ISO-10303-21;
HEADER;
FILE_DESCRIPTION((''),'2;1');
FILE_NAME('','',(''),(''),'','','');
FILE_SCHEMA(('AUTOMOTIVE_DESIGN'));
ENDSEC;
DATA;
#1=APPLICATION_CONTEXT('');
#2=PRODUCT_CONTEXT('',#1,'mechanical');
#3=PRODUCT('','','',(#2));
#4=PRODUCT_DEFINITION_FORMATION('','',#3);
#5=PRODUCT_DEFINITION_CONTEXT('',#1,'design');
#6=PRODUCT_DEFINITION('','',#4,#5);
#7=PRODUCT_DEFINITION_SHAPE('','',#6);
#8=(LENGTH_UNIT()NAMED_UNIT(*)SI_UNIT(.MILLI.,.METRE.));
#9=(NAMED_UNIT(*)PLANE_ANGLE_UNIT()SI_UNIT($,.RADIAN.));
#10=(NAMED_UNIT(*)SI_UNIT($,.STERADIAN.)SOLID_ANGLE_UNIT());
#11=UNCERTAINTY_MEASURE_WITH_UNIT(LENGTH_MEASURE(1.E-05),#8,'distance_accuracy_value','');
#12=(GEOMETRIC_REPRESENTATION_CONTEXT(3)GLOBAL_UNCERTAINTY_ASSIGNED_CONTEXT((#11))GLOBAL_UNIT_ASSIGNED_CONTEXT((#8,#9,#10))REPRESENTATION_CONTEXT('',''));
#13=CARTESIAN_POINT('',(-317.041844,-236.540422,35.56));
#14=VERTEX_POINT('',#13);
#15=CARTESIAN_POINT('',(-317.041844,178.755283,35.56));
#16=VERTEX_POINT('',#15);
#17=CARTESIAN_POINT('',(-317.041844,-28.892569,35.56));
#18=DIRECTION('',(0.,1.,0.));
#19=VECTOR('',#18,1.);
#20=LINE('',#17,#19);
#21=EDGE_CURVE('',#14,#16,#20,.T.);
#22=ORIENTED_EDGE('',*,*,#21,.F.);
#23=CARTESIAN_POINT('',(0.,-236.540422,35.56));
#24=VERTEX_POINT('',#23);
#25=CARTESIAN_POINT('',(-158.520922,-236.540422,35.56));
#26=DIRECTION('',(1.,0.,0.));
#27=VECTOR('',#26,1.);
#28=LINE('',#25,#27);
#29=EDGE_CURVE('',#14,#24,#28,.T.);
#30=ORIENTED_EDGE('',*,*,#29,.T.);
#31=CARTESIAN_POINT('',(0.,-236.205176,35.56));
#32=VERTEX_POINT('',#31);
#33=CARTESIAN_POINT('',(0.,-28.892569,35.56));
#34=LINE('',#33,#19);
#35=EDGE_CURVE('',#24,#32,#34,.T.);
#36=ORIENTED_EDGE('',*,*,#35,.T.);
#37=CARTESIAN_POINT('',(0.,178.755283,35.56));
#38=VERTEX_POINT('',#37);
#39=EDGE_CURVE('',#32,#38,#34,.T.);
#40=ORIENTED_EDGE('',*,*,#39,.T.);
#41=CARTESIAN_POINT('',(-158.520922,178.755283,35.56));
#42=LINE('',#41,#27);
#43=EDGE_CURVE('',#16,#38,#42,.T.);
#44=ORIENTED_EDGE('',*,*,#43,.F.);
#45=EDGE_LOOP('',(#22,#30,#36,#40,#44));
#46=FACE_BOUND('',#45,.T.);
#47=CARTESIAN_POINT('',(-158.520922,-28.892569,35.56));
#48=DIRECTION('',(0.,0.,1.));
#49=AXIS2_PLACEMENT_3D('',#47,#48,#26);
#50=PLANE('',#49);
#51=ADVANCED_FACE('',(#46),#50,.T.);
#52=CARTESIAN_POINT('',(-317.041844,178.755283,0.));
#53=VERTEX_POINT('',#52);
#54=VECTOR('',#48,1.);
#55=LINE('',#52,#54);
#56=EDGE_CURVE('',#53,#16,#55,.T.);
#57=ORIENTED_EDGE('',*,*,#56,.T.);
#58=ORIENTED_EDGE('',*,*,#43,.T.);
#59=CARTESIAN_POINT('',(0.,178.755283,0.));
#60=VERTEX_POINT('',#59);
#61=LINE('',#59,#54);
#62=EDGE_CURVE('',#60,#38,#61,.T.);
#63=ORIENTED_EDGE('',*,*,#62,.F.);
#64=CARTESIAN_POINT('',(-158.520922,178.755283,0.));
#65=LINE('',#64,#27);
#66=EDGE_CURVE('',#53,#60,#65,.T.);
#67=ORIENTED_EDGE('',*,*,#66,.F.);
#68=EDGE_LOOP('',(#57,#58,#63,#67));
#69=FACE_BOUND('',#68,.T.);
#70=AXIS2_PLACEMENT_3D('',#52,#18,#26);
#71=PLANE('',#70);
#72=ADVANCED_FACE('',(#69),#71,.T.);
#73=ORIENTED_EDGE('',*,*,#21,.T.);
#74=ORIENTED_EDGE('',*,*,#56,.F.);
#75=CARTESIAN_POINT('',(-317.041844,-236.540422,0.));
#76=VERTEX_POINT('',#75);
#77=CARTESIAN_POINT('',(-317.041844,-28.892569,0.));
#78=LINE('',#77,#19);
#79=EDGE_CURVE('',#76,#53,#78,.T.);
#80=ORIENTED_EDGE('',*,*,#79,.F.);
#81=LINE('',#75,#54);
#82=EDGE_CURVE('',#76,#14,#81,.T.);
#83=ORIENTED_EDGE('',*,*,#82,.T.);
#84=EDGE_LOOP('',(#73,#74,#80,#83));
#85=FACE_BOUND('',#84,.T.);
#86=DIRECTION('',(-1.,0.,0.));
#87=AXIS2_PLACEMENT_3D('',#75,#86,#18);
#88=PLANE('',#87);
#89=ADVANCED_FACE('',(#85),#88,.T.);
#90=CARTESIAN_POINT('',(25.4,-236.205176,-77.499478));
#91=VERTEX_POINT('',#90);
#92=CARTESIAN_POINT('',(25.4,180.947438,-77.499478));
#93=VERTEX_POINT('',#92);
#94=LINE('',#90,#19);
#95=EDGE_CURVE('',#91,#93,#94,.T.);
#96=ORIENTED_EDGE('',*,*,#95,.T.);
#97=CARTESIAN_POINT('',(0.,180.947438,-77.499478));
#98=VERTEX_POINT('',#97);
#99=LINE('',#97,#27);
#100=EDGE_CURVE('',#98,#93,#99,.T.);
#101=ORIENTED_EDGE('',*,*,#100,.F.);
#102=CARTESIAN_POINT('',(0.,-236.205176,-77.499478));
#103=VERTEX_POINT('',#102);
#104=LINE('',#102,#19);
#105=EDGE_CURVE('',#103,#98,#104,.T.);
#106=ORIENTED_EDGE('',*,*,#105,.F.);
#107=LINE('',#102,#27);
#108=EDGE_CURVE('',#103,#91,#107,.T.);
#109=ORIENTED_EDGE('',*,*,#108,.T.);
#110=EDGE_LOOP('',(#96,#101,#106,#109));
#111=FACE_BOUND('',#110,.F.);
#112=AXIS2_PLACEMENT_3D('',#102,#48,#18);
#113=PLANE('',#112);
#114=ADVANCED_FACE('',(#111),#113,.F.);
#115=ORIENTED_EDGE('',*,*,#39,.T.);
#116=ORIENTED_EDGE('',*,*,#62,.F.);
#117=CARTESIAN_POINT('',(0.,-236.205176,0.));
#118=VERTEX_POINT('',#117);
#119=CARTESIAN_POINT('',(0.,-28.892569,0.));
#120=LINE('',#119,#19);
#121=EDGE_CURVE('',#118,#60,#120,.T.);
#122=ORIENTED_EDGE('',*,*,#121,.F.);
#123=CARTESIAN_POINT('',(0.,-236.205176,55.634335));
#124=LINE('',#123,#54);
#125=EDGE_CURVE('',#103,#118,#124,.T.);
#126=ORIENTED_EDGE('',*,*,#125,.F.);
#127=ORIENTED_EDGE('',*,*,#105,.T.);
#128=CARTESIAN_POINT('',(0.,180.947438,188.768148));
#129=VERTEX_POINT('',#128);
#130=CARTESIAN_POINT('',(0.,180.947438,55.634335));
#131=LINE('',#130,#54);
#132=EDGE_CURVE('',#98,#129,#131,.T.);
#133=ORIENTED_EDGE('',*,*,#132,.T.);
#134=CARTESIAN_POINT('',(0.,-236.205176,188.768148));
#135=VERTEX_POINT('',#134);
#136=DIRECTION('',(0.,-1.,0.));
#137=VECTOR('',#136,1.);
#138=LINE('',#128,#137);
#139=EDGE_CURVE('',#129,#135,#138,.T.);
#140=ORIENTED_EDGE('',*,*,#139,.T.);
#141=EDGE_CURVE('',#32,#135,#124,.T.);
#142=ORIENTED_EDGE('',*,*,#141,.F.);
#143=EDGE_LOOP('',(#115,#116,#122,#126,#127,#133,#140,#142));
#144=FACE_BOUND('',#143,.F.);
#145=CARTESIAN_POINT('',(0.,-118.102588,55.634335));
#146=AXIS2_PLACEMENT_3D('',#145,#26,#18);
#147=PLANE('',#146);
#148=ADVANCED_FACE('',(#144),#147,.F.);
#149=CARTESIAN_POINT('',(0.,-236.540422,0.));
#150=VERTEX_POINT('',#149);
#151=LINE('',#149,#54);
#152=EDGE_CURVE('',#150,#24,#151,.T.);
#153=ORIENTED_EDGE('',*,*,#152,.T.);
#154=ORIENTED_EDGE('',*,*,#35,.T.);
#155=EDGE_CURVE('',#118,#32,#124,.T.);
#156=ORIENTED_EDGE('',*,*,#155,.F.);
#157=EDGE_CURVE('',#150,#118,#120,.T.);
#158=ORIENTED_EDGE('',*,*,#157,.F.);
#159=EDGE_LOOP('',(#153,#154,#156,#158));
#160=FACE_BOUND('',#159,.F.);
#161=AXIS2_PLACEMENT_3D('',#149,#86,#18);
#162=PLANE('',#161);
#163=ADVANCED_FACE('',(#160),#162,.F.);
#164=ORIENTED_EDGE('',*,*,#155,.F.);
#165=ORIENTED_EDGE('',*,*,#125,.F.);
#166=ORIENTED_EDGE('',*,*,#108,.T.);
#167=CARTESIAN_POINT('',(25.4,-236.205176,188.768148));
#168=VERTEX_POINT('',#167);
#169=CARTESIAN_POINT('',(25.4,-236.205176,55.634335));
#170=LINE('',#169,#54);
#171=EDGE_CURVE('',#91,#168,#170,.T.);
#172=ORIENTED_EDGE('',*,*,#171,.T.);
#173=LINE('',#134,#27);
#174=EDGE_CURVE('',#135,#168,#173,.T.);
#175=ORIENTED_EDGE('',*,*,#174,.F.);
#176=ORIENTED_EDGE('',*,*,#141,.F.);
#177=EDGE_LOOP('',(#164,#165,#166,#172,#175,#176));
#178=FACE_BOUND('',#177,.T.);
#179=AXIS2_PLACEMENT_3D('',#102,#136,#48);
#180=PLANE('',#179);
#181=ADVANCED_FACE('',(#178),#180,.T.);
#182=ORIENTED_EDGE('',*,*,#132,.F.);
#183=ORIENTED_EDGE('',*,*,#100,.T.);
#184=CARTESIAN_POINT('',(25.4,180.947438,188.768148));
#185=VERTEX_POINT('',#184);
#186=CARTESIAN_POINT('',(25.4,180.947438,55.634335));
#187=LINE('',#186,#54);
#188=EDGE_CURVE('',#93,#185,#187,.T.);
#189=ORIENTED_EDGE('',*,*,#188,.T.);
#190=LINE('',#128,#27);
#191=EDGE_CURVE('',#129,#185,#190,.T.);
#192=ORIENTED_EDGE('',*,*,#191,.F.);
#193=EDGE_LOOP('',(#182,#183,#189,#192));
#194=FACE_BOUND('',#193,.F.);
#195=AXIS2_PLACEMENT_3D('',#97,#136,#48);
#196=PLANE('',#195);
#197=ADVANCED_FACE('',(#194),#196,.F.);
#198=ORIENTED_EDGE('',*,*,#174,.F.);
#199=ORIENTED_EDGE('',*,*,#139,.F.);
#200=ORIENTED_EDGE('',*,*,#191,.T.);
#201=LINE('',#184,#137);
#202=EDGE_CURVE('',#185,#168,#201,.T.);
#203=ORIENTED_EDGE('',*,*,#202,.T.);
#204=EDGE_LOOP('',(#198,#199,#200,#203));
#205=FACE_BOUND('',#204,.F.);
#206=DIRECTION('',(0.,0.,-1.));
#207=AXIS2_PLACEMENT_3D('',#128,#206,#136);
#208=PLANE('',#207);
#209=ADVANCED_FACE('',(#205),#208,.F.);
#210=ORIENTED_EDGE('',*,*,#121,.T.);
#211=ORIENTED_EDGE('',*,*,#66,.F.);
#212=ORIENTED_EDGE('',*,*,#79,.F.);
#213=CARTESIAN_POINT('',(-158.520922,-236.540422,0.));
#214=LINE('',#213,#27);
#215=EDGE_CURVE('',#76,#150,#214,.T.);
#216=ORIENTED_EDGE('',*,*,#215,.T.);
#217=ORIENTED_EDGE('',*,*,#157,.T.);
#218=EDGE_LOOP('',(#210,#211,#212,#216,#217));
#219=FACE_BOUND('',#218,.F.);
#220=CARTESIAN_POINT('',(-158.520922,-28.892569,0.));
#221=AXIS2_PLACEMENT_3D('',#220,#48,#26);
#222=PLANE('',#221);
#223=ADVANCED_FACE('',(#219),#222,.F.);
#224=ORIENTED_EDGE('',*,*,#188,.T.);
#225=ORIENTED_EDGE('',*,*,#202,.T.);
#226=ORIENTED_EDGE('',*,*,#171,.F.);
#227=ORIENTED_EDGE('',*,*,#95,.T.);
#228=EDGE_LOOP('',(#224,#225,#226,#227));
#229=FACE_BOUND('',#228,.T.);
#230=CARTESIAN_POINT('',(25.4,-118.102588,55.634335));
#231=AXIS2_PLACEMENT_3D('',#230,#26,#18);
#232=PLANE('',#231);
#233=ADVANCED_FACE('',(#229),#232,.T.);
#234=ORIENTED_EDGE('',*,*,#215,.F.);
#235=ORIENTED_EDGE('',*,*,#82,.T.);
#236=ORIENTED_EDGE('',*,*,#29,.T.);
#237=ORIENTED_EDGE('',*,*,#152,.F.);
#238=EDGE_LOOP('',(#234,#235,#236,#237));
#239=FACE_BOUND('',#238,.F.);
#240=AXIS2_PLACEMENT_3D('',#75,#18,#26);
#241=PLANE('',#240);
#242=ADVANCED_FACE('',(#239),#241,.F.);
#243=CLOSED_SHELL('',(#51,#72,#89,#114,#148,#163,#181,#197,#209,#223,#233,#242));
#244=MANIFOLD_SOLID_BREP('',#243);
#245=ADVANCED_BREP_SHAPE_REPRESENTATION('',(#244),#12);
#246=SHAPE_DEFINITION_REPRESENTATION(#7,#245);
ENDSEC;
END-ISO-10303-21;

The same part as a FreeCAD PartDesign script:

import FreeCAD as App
import Part
import Sketcher

V = App.Vector
Q = App.Units.Quantity


def add_polygon(sketch, points):
    """Adds a closed chain of lines whose ends are joined by coincident constraints."""
    first, n = sketch.GeometryCount, len(points)
    for a, b in zip(points, points[1:] + points[:1]):
        sketch.addGeometry(Part.LineSegment(App.Vector(*a, 0), App.Vector(*b, 0)), False)
    for i in range(n):
        sketch.addConstraint(Sketcher.Constraint("Coincident", first + i, 2, first + (i + 1) % n, 1))

doc = App.newDocument("Part")
body = doc.addObject("PartDesign::Body", "Body")

# Sketch on YZ plane
sketch1 = body.newObject("Sketcher::SketchObject", "Sketch")
sketch1.AttachmentSupport = (doc.getObject("YZ_Plane"), [""])
sketch1.MapMode = "FlatFace"
add_polygon(sketch1, [(-236, 189), (-236, -77), (181, -77), (181, 189)])  # lines 0-3
sketch1.addConstraint([
    Sketcher.Constraint("Vertical", 0),
    Sketcher.Constraint("Horizontal", 1),
    Sketcher.Constraint("Vertical", 2),
    Sketcher.Constraint("Horizontal", 3),
    Sketcher.Constraint("DistanceX", 1, 1, 1, 2, Q("417.152614 mm")),
    Sketcher.Constraint("DistanceY", 0, 2, 0, 1, Q("266.267627 mm")),
    Sketcher.Constraint("DistanceY", 0, 2, -1, 1, Q("77.499478 mm")),
    Sketcher.Constraint("DistanceX", -1, 1, 1, 2, Q("180.947438 mm")),
])
pad1 = body.newObject("PartDesign::Pad", "Pad")
pad1.Profile = sketch1
pad1.Length = Q("1 in")

# Sketch on XY plane
sketch2 = body.newObject("Sketcher::SketchObject", "Sketch001")
sketch2.AttachmentSupport = (doc.getObject("XY_Plane"), [""])
sketch2.MapMode = "FlatFace"
add_polygon(sketch2, [(-317, 179), (-317, -237), (0, -237), (0, 179)])  # lines 0-3
sketch2.addConstraint([
    Sketcher.Constraint("Vertical", 0),
    Sketcher.Constraint("Horizontal", 1),
    Sketcher.Constraint("Vertical", 2),
    Sketcher.Constraint("Horizontal", 3),
    Sketcher.Constraint("PointOnObject", 1, 2, -2),
    Sketcher.Constraint("DistanceX", 1, 1, 1, 2, Q("317.041844 mm")),
    Sketcher.Constraint("DistanceY", 0, 2, 0, 1, Q("415.295705 mm")),
    Sketcher.Constraint("DistanceY", 0, 2, -1, 1, Q("236.540422 mm")),
])
pad2 = body.newObject("PartDesign::Pad", "Pad001")
pad2.Profile = sketch2
pad2.Length = Q("1.4 in")

doc.recompute()
